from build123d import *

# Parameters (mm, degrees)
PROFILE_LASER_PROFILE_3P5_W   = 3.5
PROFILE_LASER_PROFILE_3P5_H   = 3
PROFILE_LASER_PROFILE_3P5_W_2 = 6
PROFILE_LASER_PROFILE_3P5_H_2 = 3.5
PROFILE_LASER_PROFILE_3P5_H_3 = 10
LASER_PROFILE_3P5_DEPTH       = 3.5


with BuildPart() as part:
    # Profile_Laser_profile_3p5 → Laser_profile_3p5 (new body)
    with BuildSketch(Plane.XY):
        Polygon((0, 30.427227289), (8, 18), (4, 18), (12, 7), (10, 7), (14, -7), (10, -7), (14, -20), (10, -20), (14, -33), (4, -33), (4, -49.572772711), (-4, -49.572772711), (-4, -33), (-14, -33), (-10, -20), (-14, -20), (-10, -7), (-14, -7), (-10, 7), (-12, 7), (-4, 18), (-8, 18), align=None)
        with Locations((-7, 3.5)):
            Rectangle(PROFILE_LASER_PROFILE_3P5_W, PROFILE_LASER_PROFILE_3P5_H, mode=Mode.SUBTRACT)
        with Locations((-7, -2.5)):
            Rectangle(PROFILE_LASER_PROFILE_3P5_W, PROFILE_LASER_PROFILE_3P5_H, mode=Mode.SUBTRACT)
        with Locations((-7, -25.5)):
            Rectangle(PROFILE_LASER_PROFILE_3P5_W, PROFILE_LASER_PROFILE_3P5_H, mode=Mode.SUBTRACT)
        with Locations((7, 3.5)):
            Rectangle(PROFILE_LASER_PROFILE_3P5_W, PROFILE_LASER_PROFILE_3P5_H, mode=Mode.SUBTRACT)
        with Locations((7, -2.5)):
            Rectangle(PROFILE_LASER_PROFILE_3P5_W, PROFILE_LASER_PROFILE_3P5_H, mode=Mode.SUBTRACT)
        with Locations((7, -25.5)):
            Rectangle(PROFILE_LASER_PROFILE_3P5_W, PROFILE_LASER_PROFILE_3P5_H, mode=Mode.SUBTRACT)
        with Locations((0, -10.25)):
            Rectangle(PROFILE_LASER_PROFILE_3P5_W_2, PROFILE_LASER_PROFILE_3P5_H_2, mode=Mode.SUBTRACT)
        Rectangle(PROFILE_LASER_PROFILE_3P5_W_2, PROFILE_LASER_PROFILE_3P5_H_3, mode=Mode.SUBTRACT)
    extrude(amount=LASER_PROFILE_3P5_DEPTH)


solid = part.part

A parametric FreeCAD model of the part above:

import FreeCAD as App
import Part
import Sketcher

V = App.Vector
Q = App.Units.Quantity

doc = App.newDocument("Part")
params = doc.addObject("Spreadsheet::Sheet", "Params")
for row, (alias, value) in enumerate([
    ("sketch1_width", "4 mm"),
    ("sketch1_width2", "2 mm"),
    ("sketch1_width3", "10 mm"),
    ("sketch1_width4", "8 mm"),
    ("sketch1_width5", "6 mm"),
    ("pad1_length", "3.5 mm"),
], start=1):
    params.set(f"A{row}", alias)
    params.set(f"B{row}", "=" + value)
    params.setAlias(f"B{row}", alias)

body = doc.addObject("PartDesign::Body", "Body")

# Sketch on XY plane
sketch1 = body.newObject("Sketcher::SketchObject", "Sketch")
sketch1.AttachmentSupport = (doc.getObject("XY_Plane"), [""])
sketch1.MapMode = "FlatFace"
sketch1.addGeometry([
    Part.LineSegment(V(8, 18, 0), V(0, 30.4, 0)),  # 0
    Part.LineSegment(V(0, 30.4, 0), V(-8, 18, 0)),  # 1
    Part.LineSegment(V(-8, 18, 0), V(-4, 18, 0)),  # 2
    Part.LineSegment(V(-4, 18, 0), V(-12, 7, 0)),  # 3
    Part.LineSegment(V(-12, 7, 0), V(-10, 7, 0)),  # 4
    Part.LineSegment(V(-10, 7, 0), V(-14, -7, 0)),  # 5
    Part.LineSegment(V(-14, -7, 0), V(-10, -7, 0)),  # 6
    Part.LineSegment(V(-10, -7, 0), V(-14, -20, 0)),  # 7
    Part.LineSegment(V(-14, -20, 0), V(-10, -20, 0)),  # 8
    Part.LineSegment(V(-10, -20, 0), V(-14, -33, 0)),  # 9
    Part.LineSegment(V(-14, -33, 0), V(-4, -33, 0)),  # 10
    Part.LineSegment(V(-4, -33, 0), V(-4, -49.6, 0)),  # 11
    Part.LineSegment(V(-4, -49.6, 0), V(4, -49.6, 0)),  # 12
    Part.LineSegment(V(4, -49.6, 0), V(4, -33, 0)),  # 13
    Part.LineSegment(V(4, -33, 0), V(14, -33, 0)),  # 14
    Part.LineSegment(V(14, -33, 0), V(10, -20, 0)),  # 15
    Part.LineSegment(V(10, -20, 0), V(14, -20, 0)),  # 16
    Part.LineSegment(V(14, -20, 0), V(10, -7, 0)),  # 17
    Part.LineSegment(V(10, -7, 0), V(14, -7, 0)),  # 18
    Part.LineSegment(V(14, -7, 0), V(10, 7, 0)),  # 19
    Part.LineSegment(V(10, 7, 0), V(12, 7, 0)),  # 20
    Part.LineSegment(V(12, 7, 0), V(4, 18, 0)),  # 21
    Part.LineSegment(V(4, 18, 0), V(8, 18, 0)),  # 22
    Part.LineSegment(V(5.2, -27, 0), V(5.2, -24, 0)),  # 23
    Part.LineSegment(V(5.2, -24, 0), V(8.8, -24, 0)),  # 24
    Part.LineSegment(V(8.8, -24, 0), V(8.8, -27, 0)),  # 25
    Part.LineSegment(V(8.8, -27, 0), V(5.2, -27, 0)),  # 26
    Part.LineSegment(V(-8.8, -27, 0), V(-8.8, -24, 0)),  # 27
    Part.LineSegment(V(-8.8, -24, 0), V(-5.2, -24, 0)),  # 28
    Part.LineSegment(V(-5.2, -24, 0), V(-5.2, -27, 0)),  # 29
    Part.LineSegment(V(-5.2, -27, 0), V(-8.8, -27, 0)),  # 30
    Part.LineSegment(V(5.2, -4, 0), V(5.2, -1, 0)),  # 31
    Part.LineSegment(V(5.2, -1, 0), V(8.8, -1, 0)),  # 32
    Part.LineSegment(V(8.8, -1, 0), V(8.8, -4, 0)),  # 33
    Part.LineSegment(V(8.8, -4, 0), V(5.2, -4, 0)),  # 34
    Part.LineSegment(V(5.2, 2, 0), V(5.2, 5, 0)),  # 35
    Part.LineSegment(V(5.2, 5, 0), V(8.8, 5, 0)),  # 36
    Part.LineSegment(V(8.8, 5, 0), V(8.8, 2, 0)),  # 37
    Part.LineSegment(V(8.8, 2, 0), V(5.2, 2, 0)),  # 38
    Part.LineSegment(V(-3, -12, 0), V(-3, -8.5, 0)),  # 39
    Part.LineSegment(V(-3, -8.5, 0), V(3, -8.5, 0)),  # 40
    Part.LineSegment(V(3, -8.5, 0), V(3, -12, 0)),  # 41
    Part.LineSegment(V(3, -12, 0), V(-3, -12, 0)),  # 42
    Part.LineSegment(V(-3, -5, 0), V(-3, 5, 0)),  # 43
    Part.LineSegment(V(-3, 5, 0), V(3, 5, 0)),  # 44
    Part.LineSegment(V(3, 5, 0), V(3, -5, 0)),  # 45
    Part.LineSegment(V(3, -5, 0), V(-3, -5, 0)),  # 46
    Part.LineSegment(V(-8.8, -4, 0), V(-8.8, -1, 0)),  # 47
    Part.LineSegment(V(-8.8, -1, 0), V(-5.2, -1, 0)),  # 48
    Part.LineSegment(V(-5.2, -1, 0), V(-5.2, -4, 0)),  # 49
    Part.LineSegment(V(-5.2, -4, 0), V(-8.8, -4, 0)),  # 50
    Part.LineSegment(V(-8.8, 2, 0), V(-8.8, 5, 0)),  # 51
    Part.LineSegment(V(-8.8, 5, 0), V(-5.2, 5, 0)),  # 52
    Part.LineSegment(V(-5.2, 5, 0), V(-5.2, 2, 0)),  # 53
    Part.LineSegment(V(-5.2, 2, 0), V(-8.8, 2, 0)),  # 54
], False)
sketch1.addConstraint([
    Sketcher.Constraint("Coincident", 0, 2, 1, 1),
    Sketcher.Constraint("Coincident", 1, 2, 2, 1),
    Sketcher.Constraint("Coincident", 2, 2, 3, 1),
    Sketcher.Constraint("Coincident", 3, 2, 4, 1),
    Sketcher.Constraint("Coincident", 4, 2, 5, 1),
    Sketcher.Constraint("Coincident", 5, 2, 6, 1),
    Sketcher.Constraint("Coincident", 6, 2, 7, 1),
    Sketcher.Constraint("Coincident", 7, 2, 8, 1),
    Sketcher.Constraint("Coincident", 8, 2, 9, 1),
    Sketcher.Constraint("Coincident", 9, 2, 10, 1),
    Sketcher.Constraint("Coincident", 10, 2, 11, 1),
    Sketcher.Constraint("Coincident", 11, 2, 12, 1),
    Sketcher.Constraint("Coincident", 12, 2, 13, 1),
    Sketcher.Constraint("Coincident", 13, 2, 14, 1),
    Sketcher.Constraint("Coincident", 14, 2, 15, 1),
    Sketcher.Constraint("Coincident", 15, 2, 16, 1),
    Sketcher.Constraint("Coincident", 16, 2, 17, 1),
    Sketcher.Constraint("Coincident", 17, 2, 18, 1),
    Sketcher.Constraint("Coincident", 18, 2, 19, 1),
    Sketcher.Constraint("Coincident", 19, 2, 20, 1),
    Sketcher.Constraint("Coincident", 20, 2, 21, 1),
    Sketcher.Constraint("Coincident", 21, 2, 22, 1),
    Sketcher.Constraint("Coincident", 22, 2, 0, 1),
    Sketcher.Constraint("Coincident", 23, 2, 24, 1),
    Sketcher.Constraint("Coincident", 24, 2, 25, 1),
    Sketcher.Constraint("Coincident", 25, 2, 26, 1),
    Sketcher.Constraint("Coincident", 26, 2, 23, 1),
    Sketcher.Constraint("Coincident", 27, 2, 28, 1),
    Sketcher.Constraint("Coincident", 28, 2, 29, 1),
    Sketcher.Constraint("Coincident", 29, 2, 30, 1),
    Sketcher.Constraint("Coincident", 30, 2, 27, 1),
    Sketcher.Constraint("Coincident", 31, 2, 32, 1),
    Sketcher.Constraint("Coincident", 32, 2, 33, 1),
    Sketcher.Constraint("Coincident", 33, 2, 34, 1),
    Sketcher.Constraint("Coincident", 34, 2, 31, 1),
    Sketcher.Constraint("Coincident", 35, 2, 36, 1),
    Sketcher.Constraint("Coincident", 36, 2, 37, 1),
    Sketcher.Constraint("Coincident", 37, 2, 38, 1),
    Sketcher.Constraint("Coincident", 38, 2, 35, 1),
    Sketcher.Constraint("Coincident", 39, 2, 40, 1),
    Sketcher.Constraint("Coincident", 40, 2, 41, 1),
    Sketcher.Constraint("Coincident", 41, 2, 42, 1),
    Sketcher.Constraint("Coincident", 42, 2, 39, 1),
    Sketcher.Constraint("Coincident", 43, 2, 44, 1),
    Sketcher.Constraint("Coincident", 44, 2, 45, 1),
    Sketcher.Constraint("Coincident", 45, 2, 46, 1),
    Sketcher.Constraint("Coincident", 46, 2, 43, 1),
    Sketcher.Constraint("Coincident", 47, 2, 48, 1),
    Sketcher.Constraint("Coincident", 48, 2, 49, 1),
    Sketcher.Constraint("Coincident", 49, 2, 50, 1),
    Sketcher.Constraint("Coincident", 50, 2, 47, 1),
    Sketcher.Constraint("Coincident", 51, 2, 52, 1),
    Sketcher.Constraint("Coincident", 52, 2, 53, 1),
    Sketcher.Constraint("Coincident", 53, 2, 54, 1),
    Sketcher.Constraint("Coincident", 54, 2, 51, 1),
    Sketcher.Constraint("Horizontal", 2),
    Sketcher.Constraint("Horizontal", 4),
    Sketcher.Constraint("Horizontal", 6),
    Sketcher.Constraint("Horizontal", 8),
    Sketcher.Constraint("Horizontal", 10),
    Sketcher.Constraint("Vertical", 11),
    Sketcher.Constraint("Horizontal", 12),
    Sketcher.Constraint("Vertical", 13),
    Sketcher.Constraint("Horizontal", 14),
    Sketcher.Constraint("Horizontal", 16),
    Sketcher.Constraint("Horizontal", 18),
    Sketcher.Constraint("Horizontal", 20),
    Sketcher.Constraint("Horizontal", 22),
    Sketcher.Constraint("Vertical", 23),
    Sketcher.Constraint("Horizontal", 24),
    Sketcher.Constraint("Vertical", 25),
    Sketcher.Constraint("Horizontal", 26),
    Sketcher.Constraint("Vertical", 27),
    Sketcher.Constraint("Horizontal", 28),
    Sketcher.Constraint("Vertical", 29),
    Sketcher.Constraint("Horizontal", 30),
    Sketcher.Constraint("Vertical", 31),
    Sketcher.Constraint("Horizontal", 32),
    Sketcher.Constraint("Vertical", 33),
    Sketcher.Constraint("Horizontal", 34),
    Sketcher.Constraint("Vertical", 35),
    Sketcher.Constraint("Horizontal", 36),
    Sketcher.Constraint("Vertical", 37),
    Sketcher.Constraint("Horizontal", 38),
    Sketcher.Constraint("Vertical", 39),
    Sketcher.Constraint("Horizontal", 40),
    Sketcher.Constraint("Vertical", 41),
    Sketcher.Constraint("Horizontal", 42),
    Sketcher.Constraint("Vertical", 43),
    Sketcher.Constraint("Horizontal", 44),
    Sketcher.Constraint("Vertical", 45),
    Sketcher.Constraint("Horizontal", 46),
    Sketcher.Constraint("Vertical", 47),
    Sketcher.Constraint("Horizontal", 48),
    Sketcher.Constraint("Vertical", 49),
    Sketcher.Constraint("Horizontal", 50),
    Sketcher.Constraint("Vertical", 51),
    Sketcher.Constraint("Horizontal", 52),
    Sketcher.Constraint("Vertical", 53),
    Sketcher.Constraint("Horizontal", 54),
    Sketcher.Constraint("Symmetric", 4, 2, 17, 2, -1, 1),
    Sketcher.Constraint("Symmetric", 6, 2, 19, 2, -1, 1),
    Sketcher.Constraint("Symmetric", 43, 2, 45, 2, -1, 1),
    Sketcher.Constraint("Symmetric", 10, 2, 13, 2, -2),
    Sketcher.Constraint("Symmetric", 8, 2, 15, 2, -2),
    Sketcher.Constraint("Symmetric", 6, 2, 17, 2, -2),
    Sketcher.Constraint("Symmetric", 2, 2, 21, 2, -2),
    Sketcher.Constraint("Symmetric", 24, 2, 27, 2, -2),
    Sketcher.Constraint("Symmetric", 26, 2, 29, 2, -2),
    Sketcher.Constraint("Symmetric", 32, 2, 47, 2, -2),
    Sketcher.Constraint("Symmetric", 34, 2, 49, 2, -2),
    Sketcher.Constraint("Symmetric", 36, 2, 51, 2, -2),
    Sketcher.Constraint("Symmetric", 38, 2, 53, 2, -2),
    Sketcher.Constraint("PointOnObject", 0, 2, -2),
    Sketcher.Constraint("Parallel", 7, 9),
    Sketcher.Constraint("Parallel", 15, 17),
    Sketcher.Constraint("Horizontal", 36, 2, 43, 2),
    Sketcher.Constraint("Vertical", 5, 2, 7, 2),
    Sketcher.Constraint("Vertical", 6, 2, 8, 2),
    Sketcher.Constraint("Vertical", 7, 2, 9, 2),
    Sketcher.Constraint("Vertical", 2, 2, 10, 2),
    Sketcher.Constraint("Vertical", 16, 2, 18, 2),
    Sketcher.Constraint("Vertical", 26, 2, 31, 2),
    Sketcher.Constraint("Vertical", 25, 2, 32, 2),
    Sketcher.Constraint("Vertical", 34, 2, 35, 2),
    Sketcher.Constraint("Vertical", 33, 2, 36, 2),
    Sketcher.Constraint("Vertical", 42, 2, 43, 2),
    Sketcher.Constraint("Vertical", 41, 2, 44, 2),
    Sketcher.Constraint("Equal", 2, 6),
    Sketcher.Constraint("Equal", 10, 14),
    Sketcher.Constraint("Equal", 4, 20),
    Sketcher.Constraint("Equal", 18, 22),
    Sketcher.Constraint("Equal", 29, 31),
    Sketcher.Constraint("Equal", 33, 35),
    Sketcher.Constraint("Equal", 54, 39),
    Sketcher.Constraint("Equal", 14, 43),
    Sketcher.Constraint("Equal", 3, 7),
    Sketcher.Constraint("DistanceX", 2, 1, 2, 2, Q("4 mm")),
    Sketcher.Constraint("DistanceX", 4, 1, 4, 2, Q("2 mm")),
    Sketcher.Constraint("DistanceX", 10, 1, 10, 2, Q("10 mm")),
    Sketcher.Constraint("DistanceX", 12, 1, 12, 2, Q("8 mm")),
    Sketcher.Constraint("DistanceX", 40, 1, 40, 2, Q("6 mm")),
    Sketcher.Constraint("DistanceY", 23, 1, 23, 2, Q("3 mm")),
    Sketcher.Constraint("DistanceX", 24, 1, 24, 2, Q("3.5 mm")),
    Sketcher.Constraint("DistanceY", -1, 1, 1, 2, Q("18 mm")),
    Sketcher.Constraint("DistanceY", -1, 1, 3, 2, Q("7 mm")),
    Sketcher.Constraint("DistanceY", 23, 2, -1, 1, Q("24 mm")),
    Sketcher.Constraint("DistanceY", 31, 2, -1, 1, Q("1 mm")),
    Sketcher.Constraint("DistanceY", 41, 2, -1, 1, Q("12 mm")),
    Sketcher.Constraint("DistanceX", 27, 2, 23, 2, Q("14 mm")),
    Sketcher.Constraint("Distance", 0, Q("14.77958 mm")),
    Sketcher.Constraint("DistanceY", 11, 2, 11, 1, Q("16.572773 mm")),
])
sketch1.setExpression("Constraints[137]", "Params.sketch1_width")
sketch1.setExpression("Constraints[138]", "Params.sketch1_width2")
sketch1.setExpression("Constraints[139]", "Params.sketch1_width3")
sketch1.setExpression("Constraints[140]", "Params.sketch1_width4")
sketch1.setExpression("Constraints[141]", "Params.sketch1_width5")
pad1 = body.newObject("PartDesign::Pad", "Pad")
pad1.Profile = sketch1
pad1.setExpression("Length", "Params.pad1_length")

doc.recompute()
